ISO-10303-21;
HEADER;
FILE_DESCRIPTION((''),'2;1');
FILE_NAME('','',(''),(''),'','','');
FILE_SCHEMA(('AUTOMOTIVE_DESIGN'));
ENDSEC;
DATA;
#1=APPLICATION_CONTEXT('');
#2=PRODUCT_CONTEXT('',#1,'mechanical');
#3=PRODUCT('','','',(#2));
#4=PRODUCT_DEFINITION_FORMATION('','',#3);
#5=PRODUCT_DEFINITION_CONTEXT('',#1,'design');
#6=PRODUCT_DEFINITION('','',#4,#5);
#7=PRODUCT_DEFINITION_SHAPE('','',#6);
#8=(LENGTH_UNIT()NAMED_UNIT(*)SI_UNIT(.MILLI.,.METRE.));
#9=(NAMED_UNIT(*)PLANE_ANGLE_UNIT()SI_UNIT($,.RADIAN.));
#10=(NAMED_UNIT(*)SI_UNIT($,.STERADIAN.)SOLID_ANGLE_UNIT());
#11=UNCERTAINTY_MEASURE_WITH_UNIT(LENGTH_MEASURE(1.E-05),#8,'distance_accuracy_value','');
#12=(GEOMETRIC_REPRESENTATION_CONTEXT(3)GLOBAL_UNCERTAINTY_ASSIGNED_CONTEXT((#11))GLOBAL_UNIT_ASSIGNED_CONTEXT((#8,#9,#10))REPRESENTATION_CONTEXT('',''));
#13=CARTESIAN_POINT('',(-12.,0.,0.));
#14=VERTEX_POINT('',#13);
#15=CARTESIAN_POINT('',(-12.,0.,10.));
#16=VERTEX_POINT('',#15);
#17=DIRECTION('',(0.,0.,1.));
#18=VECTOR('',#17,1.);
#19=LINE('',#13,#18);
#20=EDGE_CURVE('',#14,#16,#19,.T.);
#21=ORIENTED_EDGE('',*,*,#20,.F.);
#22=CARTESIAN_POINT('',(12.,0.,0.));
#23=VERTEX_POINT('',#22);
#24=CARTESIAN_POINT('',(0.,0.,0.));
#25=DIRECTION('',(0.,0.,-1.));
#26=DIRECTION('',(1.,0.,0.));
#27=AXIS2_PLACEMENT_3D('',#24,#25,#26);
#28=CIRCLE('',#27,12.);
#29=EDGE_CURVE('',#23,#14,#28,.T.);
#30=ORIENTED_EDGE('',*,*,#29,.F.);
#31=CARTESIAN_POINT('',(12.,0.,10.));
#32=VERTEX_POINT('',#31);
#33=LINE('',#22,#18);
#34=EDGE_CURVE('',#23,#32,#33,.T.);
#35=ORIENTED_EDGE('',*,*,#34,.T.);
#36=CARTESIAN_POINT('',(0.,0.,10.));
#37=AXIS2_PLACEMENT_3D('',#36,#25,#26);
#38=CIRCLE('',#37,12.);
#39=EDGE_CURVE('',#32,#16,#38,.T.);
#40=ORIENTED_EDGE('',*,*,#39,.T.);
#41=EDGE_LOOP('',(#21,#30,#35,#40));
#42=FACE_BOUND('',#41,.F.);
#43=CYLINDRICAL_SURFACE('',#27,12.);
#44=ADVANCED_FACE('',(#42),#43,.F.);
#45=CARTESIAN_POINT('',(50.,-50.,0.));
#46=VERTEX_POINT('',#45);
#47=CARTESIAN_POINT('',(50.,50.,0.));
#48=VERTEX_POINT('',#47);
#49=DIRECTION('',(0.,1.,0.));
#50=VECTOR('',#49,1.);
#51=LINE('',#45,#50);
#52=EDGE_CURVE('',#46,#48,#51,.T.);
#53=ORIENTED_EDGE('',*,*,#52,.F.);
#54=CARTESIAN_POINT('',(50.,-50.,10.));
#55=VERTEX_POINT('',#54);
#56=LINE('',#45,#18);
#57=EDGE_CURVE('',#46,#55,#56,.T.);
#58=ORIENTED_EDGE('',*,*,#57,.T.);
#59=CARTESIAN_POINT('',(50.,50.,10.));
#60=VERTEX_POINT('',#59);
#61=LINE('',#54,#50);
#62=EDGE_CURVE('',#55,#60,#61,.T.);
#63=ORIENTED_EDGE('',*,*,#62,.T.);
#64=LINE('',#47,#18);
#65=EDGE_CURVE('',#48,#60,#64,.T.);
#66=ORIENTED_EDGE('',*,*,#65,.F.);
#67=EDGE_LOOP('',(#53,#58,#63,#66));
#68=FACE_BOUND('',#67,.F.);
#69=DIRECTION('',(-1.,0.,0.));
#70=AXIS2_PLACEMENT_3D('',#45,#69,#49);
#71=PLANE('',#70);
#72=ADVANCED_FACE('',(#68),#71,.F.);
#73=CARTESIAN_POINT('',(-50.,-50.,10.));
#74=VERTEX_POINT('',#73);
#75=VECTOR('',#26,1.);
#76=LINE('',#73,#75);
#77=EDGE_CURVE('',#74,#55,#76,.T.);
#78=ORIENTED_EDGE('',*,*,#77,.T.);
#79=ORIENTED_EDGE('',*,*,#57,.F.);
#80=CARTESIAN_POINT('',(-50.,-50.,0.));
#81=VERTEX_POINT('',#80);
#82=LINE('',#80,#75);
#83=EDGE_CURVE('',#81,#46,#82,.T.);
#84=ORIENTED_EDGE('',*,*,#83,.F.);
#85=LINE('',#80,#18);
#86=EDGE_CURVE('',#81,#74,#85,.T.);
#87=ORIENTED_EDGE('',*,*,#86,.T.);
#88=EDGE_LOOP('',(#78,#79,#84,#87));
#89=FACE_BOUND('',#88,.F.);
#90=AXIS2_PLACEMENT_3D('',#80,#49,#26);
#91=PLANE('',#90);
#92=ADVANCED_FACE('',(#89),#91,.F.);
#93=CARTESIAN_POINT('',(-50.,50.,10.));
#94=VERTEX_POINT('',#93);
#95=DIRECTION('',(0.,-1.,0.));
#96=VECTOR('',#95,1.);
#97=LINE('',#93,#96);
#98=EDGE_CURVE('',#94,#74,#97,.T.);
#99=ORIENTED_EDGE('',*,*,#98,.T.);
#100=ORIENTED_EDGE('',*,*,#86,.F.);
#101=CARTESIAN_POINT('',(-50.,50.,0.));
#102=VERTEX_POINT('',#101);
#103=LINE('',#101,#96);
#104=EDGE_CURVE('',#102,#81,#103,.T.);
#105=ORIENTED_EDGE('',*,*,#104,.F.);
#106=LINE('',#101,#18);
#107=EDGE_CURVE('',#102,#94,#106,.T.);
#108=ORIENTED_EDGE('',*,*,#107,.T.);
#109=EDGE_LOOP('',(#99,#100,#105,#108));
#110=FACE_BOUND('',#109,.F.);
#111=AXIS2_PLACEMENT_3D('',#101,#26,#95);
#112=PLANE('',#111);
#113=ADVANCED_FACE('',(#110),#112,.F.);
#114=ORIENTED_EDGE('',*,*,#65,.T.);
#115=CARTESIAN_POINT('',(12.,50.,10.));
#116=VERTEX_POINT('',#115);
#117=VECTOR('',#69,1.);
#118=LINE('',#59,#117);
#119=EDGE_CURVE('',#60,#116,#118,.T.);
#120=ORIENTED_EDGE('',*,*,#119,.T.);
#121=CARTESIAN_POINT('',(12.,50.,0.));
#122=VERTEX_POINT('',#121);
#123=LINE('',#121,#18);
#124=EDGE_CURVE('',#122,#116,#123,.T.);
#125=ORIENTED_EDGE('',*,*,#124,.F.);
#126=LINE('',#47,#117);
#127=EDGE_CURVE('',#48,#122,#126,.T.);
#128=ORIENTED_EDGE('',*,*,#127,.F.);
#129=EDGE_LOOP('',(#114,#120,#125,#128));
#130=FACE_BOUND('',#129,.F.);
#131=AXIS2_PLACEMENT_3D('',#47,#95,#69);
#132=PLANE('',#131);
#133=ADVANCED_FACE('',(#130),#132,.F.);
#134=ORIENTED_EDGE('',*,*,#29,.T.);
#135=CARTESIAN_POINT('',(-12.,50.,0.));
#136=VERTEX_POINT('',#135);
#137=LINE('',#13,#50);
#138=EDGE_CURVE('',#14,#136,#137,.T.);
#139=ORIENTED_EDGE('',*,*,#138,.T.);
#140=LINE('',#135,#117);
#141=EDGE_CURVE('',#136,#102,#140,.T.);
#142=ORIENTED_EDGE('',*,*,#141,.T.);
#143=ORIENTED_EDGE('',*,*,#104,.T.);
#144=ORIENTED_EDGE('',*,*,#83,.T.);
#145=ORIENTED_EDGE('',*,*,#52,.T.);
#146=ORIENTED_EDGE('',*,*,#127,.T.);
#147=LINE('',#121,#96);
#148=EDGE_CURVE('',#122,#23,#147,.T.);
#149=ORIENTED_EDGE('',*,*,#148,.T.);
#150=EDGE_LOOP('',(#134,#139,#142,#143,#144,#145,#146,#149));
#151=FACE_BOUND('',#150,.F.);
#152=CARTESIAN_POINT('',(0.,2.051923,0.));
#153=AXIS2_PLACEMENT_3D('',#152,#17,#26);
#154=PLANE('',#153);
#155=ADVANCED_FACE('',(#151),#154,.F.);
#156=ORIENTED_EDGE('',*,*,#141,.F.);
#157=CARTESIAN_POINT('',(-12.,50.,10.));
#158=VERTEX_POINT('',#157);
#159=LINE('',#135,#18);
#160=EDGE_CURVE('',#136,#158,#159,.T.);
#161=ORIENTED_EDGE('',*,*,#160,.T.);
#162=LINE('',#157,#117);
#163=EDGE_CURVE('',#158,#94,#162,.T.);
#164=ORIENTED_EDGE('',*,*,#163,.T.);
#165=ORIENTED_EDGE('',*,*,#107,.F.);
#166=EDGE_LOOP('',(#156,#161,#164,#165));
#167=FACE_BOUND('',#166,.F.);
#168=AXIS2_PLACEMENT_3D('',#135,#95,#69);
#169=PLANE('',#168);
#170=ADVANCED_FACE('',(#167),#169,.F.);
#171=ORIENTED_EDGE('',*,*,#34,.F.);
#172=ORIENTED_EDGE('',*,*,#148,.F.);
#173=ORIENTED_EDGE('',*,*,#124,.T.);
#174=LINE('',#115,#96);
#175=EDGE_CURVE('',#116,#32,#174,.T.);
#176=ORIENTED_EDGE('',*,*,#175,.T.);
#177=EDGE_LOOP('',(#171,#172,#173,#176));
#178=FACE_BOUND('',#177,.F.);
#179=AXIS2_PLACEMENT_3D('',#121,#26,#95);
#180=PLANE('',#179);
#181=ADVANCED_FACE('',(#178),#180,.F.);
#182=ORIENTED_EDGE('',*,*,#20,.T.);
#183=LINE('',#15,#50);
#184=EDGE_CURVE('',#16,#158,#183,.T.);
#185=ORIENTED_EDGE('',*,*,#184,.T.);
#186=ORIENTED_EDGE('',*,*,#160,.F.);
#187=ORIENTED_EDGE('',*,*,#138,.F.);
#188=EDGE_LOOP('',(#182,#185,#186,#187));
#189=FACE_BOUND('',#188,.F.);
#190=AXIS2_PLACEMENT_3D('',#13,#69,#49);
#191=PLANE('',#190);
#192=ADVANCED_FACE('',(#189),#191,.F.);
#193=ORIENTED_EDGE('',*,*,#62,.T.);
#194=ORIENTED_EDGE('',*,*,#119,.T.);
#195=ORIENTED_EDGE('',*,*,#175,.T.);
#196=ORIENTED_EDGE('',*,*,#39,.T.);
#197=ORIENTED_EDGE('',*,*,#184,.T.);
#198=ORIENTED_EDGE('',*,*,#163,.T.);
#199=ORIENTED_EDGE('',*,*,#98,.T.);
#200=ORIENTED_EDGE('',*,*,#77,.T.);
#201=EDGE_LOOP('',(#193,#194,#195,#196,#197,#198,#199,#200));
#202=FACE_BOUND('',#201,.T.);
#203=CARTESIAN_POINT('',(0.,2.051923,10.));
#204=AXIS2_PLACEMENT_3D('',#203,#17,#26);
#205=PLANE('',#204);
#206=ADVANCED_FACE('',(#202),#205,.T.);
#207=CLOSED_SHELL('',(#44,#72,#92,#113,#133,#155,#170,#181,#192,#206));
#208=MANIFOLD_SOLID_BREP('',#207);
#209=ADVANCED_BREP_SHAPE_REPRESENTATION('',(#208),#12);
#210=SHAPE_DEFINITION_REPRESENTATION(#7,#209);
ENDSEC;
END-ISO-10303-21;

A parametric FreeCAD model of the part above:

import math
import FreeCAD as App
import Part
import Sketcher
from FreeCAD import Vector
Q = App.Units.Quantity

doc = App.newDocument("Part")
body = doc.addObject("PartDesign::Body", "Body")

sketch1 = doc.addObject("Sketcher::SketchObject", "Sketch")
body.addObject(sketch1)
sketch1.AttachmentSupport = (doc.XY_Plane, [""])
sketch1.MapMode = "FlatFace"
sketch1.addGeometry([
    Part.LineSegment(Vector(-12, 50, 0), Vector(-50, 50, 0)),
    Part.LineSegment(Vector(-50, 50, 0), Vector(-50, -50, 0)),
    Part.LineSegment(Vector(-50, -50, 0), Vector(50, -50, 0)),
    Part.LineSegment(Vector(50, -50, 0), Vector(50, 50, 0)),
    Part.LineSegment(Vector(50, 50, 0), Vector(12, 50, 0)),
    Part.LineSegment(Vector(12, 50, 0), Vector(12, 0, 0)),
    Part.ArcOfCircle(Part.Circle(Vector(0, 0, 0), Vector(0, 0, 1), 12), math.radians(180), math.radians(360)),
    Part.LineSegment(Vector(-12, 0, 0), Vector(-12, 50, 0)),
], False)
sketch1.addConstraint([
    Sketcher.Constraint("Coincident", 0, 2, 1, 1),
    Sketcher.Constraint("Coincident", 1, 2, 2, 1),
    Sketcher.Constraint("Coincident", 2, 2, 3, 1),
    Sketcher.Constraint("Coincident", 3, 2, 4, 1),
    Sketcher.Constraint("Coincident", 4, 2, 5, 1),
    Sketcher.Constraint("Tangent", 5, 2, 6, 2),
    Sketcher.Constraint("Tangent", 6, 1, 7, 1),
    Sketcher.Constraint("Coincident", 7, 2, 0, 1),
    Sketcher.Constraint("Horizontal", 0),
    Sketcher.Constraint("Vertical", 1),
    Sketcher.Constraint("Horizontal", 2),
    Sketcher.Constraint("Vertical", 3),
    Sketcher.Constraint("Horizontal", 4),
    Sketcher.Constraint("Vertical", 5),
    Sketcher.Constraint("Vertical", 7),
    Sketcher.Constraint("Coincident", 6, 3, -1, 1),
    Sketcher.Constraint("Symmetric", 0, 2, 2, 2, -1, 1),
    Sketcher.Constraint("Horizontal", 0, 2, 3, 2),
    Sketcher.Constraint("Equal", 2, 1),
    Sketcher.Constraint("Radius", 6, Q("12 mm")),
    Sketcher.Constraint("DistanceX", 0, 2, 0, 1, Q("38 mm")),
])
pad1 = doc.addObject("PartDesign::Pad", "Pad")
body.addObject(pad1)
pad1.Profile = sketch1
pad1.Length = 10

doc.recompute()
